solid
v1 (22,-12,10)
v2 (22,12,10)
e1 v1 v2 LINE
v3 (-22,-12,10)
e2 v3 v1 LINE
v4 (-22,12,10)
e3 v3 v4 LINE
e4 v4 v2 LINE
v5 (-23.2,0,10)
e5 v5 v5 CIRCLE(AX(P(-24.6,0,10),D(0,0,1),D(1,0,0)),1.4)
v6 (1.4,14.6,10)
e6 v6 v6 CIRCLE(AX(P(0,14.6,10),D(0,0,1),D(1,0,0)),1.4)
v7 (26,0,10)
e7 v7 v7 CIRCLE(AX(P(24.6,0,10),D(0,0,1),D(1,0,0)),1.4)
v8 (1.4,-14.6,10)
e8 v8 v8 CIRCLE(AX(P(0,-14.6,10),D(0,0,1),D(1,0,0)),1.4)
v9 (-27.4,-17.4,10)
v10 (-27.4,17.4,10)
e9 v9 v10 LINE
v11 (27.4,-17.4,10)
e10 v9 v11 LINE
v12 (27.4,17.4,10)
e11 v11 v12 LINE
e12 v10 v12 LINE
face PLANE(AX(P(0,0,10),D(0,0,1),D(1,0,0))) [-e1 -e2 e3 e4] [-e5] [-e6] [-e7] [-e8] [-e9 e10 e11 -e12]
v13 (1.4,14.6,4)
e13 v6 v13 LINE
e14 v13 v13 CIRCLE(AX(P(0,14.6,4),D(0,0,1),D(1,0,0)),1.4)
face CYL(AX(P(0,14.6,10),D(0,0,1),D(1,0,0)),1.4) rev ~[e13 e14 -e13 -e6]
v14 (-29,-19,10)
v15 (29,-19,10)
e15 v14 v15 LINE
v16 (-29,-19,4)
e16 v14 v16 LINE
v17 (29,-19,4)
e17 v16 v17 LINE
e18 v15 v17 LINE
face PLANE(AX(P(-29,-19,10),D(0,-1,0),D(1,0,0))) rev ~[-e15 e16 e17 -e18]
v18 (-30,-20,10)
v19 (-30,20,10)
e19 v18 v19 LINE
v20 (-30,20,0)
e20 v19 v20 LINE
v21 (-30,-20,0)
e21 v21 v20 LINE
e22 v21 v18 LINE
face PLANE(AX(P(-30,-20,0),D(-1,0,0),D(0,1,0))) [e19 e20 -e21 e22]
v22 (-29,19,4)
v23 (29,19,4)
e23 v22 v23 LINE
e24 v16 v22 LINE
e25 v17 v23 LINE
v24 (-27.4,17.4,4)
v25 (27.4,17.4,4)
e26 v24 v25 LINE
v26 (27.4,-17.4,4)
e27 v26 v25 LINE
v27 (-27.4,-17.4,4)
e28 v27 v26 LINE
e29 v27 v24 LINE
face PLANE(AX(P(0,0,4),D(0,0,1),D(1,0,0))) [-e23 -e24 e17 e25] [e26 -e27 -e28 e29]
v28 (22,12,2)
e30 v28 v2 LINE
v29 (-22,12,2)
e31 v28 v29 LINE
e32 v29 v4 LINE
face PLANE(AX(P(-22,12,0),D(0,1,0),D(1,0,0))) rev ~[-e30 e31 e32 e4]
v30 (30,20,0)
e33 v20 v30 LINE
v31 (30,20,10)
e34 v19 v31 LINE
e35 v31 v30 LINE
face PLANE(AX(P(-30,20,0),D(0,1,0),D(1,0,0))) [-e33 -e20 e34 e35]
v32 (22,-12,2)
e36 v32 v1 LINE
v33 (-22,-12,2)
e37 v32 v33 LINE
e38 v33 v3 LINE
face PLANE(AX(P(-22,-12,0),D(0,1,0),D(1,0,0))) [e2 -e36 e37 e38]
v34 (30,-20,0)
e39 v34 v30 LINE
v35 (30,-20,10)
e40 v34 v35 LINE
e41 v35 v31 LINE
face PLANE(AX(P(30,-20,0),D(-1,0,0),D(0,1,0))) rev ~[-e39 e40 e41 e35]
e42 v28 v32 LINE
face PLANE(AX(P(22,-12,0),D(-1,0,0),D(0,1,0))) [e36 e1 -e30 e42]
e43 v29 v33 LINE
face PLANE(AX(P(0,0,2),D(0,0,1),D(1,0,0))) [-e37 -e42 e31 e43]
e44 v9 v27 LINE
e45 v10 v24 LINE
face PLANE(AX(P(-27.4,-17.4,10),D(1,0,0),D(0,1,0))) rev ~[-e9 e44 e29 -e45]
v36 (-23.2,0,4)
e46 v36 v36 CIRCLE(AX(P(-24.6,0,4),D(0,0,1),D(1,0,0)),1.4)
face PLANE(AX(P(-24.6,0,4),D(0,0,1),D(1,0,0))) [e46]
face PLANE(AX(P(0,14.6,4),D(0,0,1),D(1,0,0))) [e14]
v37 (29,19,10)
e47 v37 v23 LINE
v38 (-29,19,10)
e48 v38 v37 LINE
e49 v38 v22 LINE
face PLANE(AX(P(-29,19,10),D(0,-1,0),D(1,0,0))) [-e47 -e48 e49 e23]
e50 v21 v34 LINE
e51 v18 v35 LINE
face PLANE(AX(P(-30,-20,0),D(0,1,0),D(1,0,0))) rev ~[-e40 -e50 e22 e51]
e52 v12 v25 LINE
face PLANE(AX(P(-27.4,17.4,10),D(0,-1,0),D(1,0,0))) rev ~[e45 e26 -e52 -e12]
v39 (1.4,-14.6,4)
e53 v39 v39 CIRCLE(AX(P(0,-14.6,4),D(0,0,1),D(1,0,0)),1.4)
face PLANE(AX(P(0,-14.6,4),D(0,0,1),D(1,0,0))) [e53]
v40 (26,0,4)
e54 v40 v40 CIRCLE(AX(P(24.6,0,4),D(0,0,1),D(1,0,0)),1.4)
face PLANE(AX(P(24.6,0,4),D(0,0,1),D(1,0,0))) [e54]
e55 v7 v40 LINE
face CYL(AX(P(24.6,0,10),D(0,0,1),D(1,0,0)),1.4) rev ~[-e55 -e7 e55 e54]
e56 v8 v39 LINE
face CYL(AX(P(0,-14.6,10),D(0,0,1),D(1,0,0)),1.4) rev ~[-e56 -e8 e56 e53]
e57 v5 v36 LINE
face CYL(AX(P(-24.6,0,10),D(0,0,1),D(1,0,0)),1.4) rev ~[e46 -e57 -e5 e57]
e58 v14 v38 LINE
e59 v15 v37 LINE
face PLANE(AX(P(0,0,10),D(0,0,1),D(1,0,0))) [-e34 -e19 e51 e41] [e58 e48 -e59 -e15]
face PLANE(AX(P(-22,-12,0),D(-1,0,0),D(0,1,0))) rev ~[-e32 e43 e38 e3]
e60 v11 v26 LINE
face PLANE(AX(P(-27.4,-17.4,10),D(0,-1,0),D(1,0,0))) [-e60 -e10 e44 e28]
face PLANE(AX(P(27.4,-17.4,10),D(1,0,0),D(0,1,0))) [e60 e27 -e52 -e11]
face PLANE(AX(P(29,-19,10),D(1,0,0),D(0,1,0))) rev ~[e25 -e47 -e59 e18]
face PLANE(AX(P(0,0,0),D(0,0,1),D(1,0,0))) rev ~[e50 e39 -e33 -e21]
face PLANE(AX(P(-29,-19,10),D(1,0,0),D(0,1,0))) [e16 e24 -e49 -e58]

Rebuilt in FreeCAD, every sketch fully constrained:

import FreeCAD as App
import Part
import Sketcher
from FreeCAD import Vector
Q = App.Units.Quantity

doc = App.newDocument("Part")
body = doc.addObject("PartDesign::Body", "Body")

sketch1 = body.newObject("Sketcher::SketchObject", "Sketch")
sketch1.AttachmentSupport = (doc.getObject("XY_Plane"), [""])
sketch1.MapMode = "FlatFace"
sketch1.addGeometry(Part.LineSegment(Vector(-30, 20, 0), Vector(-30, -20, 0)), False)
sketch1.addGeometry(Part.LineSegment(Vector(-30, -20, 0), Vector(30, -20, 0)), False)
sketch1.addGeometry(Part.LineSegment(Vector(30, -20, 0), Vector(30, 20, 0)), False)
sketch1.addGeometry(Part.LineSegment(Vector(30, 20, 0), Vector(-30, 20, 0)), False)
sketch1.addConstraint(Sketcher.Constraint("Coincident", 0, 2, 1, 1))
sketch1.addConstraint(Sketcher.Constraint("Coincident", 1, 2, 2, 1))
sketch1.addConstraint(Sketcher.Constraint("Coincident", 2, 2, 3, 1))
sketch1.addConstraint(Sketcher.Constraint("Coincident", 3, 2, 0, 1))
sketch1.addConstraint(Sketcher.Constraint("Vertical", 0))
sketch1.addConstraint(Sketcher.Constraint("Horizontal", 1))
sketch1.addConstraint(Sketcher.Constraint("Vertical", 2))
sketch1.addConstraint(Sketcher.Constraint("Horizontal", 3))
sketch1.addConstraint(Sketcher.Constraint("Symmetric", 0, 2, 2, 2, -1, 1))
sketch1.addConstraint(Sketcher.Constraint("DistanceX", 1, 1, 1, 2, Q("60 mm")))
sketch1.addConstraint(Sketcher.Constraint("DistanceY", 0, 2, 0, 1, Q("40 mm")))
pad1 = body.newObject("PartDesign::Pad", "Pad")
pad1.Profile = sketch1
pad1.Length = 2

sketch2 = body.newObject("Sketcher::SketchObject", "Sketch001")
sketch2.AttachmentSupport = (doc.getObject("XY_Plane"), [""])
sketch2.MapMode = "FlatFace"
sketch2.addGeometry(Part.LineSegment(Vector(-30, 20, 0), Vector(-30, -20, 0)), False)
sketch2.addGeometry(Part.LineSegment(Vector(-30, -20, 0), Vector(30, -20, 0)), False)
sketch2.addGeometry(Part.LineSegment(Vector(30, -20, 0), Vector(30, 20, 0)), False)
sketch2.addGeometry(Part.LineSegment(Vector(30, 20, 0), Vector(-30, 20, 0)), False)
sketch2.addGeometry(Part.LineSegment(Vector(22, -12, 0), Vector(-22, -12, 0)), False)
sketch2.addGeometry(Part.LineSegment(Vector(-22, -12, 0), Vector(-22, 12, 0)), False)
sketch2.addGeometry(Part.LineSegment(Vector(-22, 12, 0), Vector(22, 12, 0)), False)
sketch2.addGeometry(Part.LineSegment(Vector(22, 12, 0), Vector(22, -12, 0)), False)
sketch2.addConstraint(Sketcher.Constraint("Coincident", 0, 2, 1, 1))
sketch2.addConstraint(Sketcher.Constraint("Coincident", 1, 2, 2, 1))
sketch2.addConstraint(Sketcher.Constraint("Coincident", 2, 2, 3, 1))
sketch2.addConstraint(Sketcher.Constraint("Coincident", 3, 2, 0, 1))
sketch2.addConstraint(Sketcher.Constraint("Coincident", 4, 2, 5, 1))
sketch2.addConstraint(Sketcher.Constraint("Coincident", 5, 2, 6, 1))
sketch2.addConstraint(Sketcher.Constraint("Coincident", 6, 2, 7, 1))
sketch2.addConstraint(Sketcher.Constraint("Coincident", 7, 2, 4, 1))
sketch2.addConstraint(Sketcher.Constraint("Vertical", 0))
sketch2.addConstraint(Sketcher.Constraint("Horizontal", 1))
sketch2.addConstraint(Sketcher.Constraint("Vertical", 2))
sketch2.addConstraint(Sketcher.Constraint("Horizontal", 3))
sketch2.addConstraint(Sketcher.Constraint("Horizontal", 4))
sketch2.addConstraint(Sketcher.Constraint("Vertical", 5))
sketch2.addConstraint(Sketcher.Constraint("Horizontal", 6))
sketch2.addConstraint(Sketcher.Constraint("Vertical", 7))
sketch2.addConstraint(Sketcher.Constraint("Symmetric", 0, 2, 2, 2, -1, 1))
sketch2.addConstraint(Sketcher.Constraint("Symmetric", 4, 2, 6, 2, -1, 1))
sketch2.addConstraint(Sketcher.Constraint("DistanceX", 1, 1, 1, 2, Q("60 mm")))
sketch2.addConstraint(Sketcher.Constraint("DistanceX", 4, 2, 4, 1, Q("44 mm")))
sketch2.addConstraint(Sketcher.Constraint("DistanceY", 0, 2, 0, 1, Q("40 mm")))
sketch2.addConstraint(Sketcher.Constraint("DistanceY", 5, 1, 5, 2, Q("24 mm")))
pad2 = body.newObject("PartDesign::Pad", "Pad001")
pad2.Profile = sketch2
pad2.Length = 10

sketch3 = body.newObject("Sketcher::SketchObject", "Sketch002")
sketch3.AttachmentSupport = (doc.getObject("XY_Plane"), [""])
sketch3.MapMode = "FlatFace"
sketch3.AttachmentOffset = App.Placement(Vector(0, 0, 10), App.Rotation())
sketch3.addGeometry(Part.LineSegment(Vector(-29, 19, 0), Vector(-29, -19, 0)), False)
sketch3.addGeometry(Part.LineSegment(Vector(-29, -19, 0), Vector(29, -19, 0)), False)
sketch3.addGeometry(Part.LineSegment(Vector(29, -19, 0), Vector(29, 19, 0)), False)
sketch3.addGeometry(Part.LineSegment(Vector(29, 19, 0), Vector(-29, 19, 0)), False)
sketch3.addGeometry(Part.LineSegment(Vector(27.4, -17.4, 0), Vector(-27.4, -17.4, 0)), False)
sketch3.addGeometry(Part.LineSegment(Vector(-27.4, -17.4, 0), Vector(-27.4, 17.4, 0)), False)
sketch3.addGeometry(Part.LineSegment(Vector(-27.4, 17.4, 0), Vector(27.4, 17.4, 0)), False)
sketch3.addGeometry(Part.LineSegment(Vector(27.4, 17.4, 0), Vector(27.4, -17.4, 0)), False)
sketch3.addGeometry(Part.Circle(Vector(0, 14.6, 0), Vector(0, 0, 1), 1.4), False)
sketch3.addGeometry(Part.Circle(Vector(24.6, 0, 0), Vector(0, 0, 1), 1.4), False)
sketch3.addGeometry(Part.Circle(Vector(0, -14.6, 0), Vector(0, 0, 1), 1.4), False)
sketch3.addGeometry(Part.Circle(Vector(-24.6, 0, 0), Vector(0, 0, 1), 1.4), False)
sketch3.addConstraint(Sketcher.Constraint("Coincident", 0, 2, 1, 1))
sketch3.addConstraint(Sketcher.Constraint("Coincident", 1, 2, 2, 1))
sketch3.addConstraint(Sketcher.Constraint("Coincident", 2, 2, 3, 1))
sketch3.addConstraint(Sketcher.Constraint("Coincident", 3, 2, 0, 1))
sketch3.addConstraint(Sketcher.Constraint("Coincident", 4, 2, 5, 1))
sketch3.addConstraint(Sketcher.Constraint("Coincident", 5, 2, 6, 1))
sketch3.addConstraint(Sketcher.Constraint("Coincident", 6, 2, 7, 1))
sketch3.addConstraint(Sketcher.Constraint("Coincident", 7, 2, 4, 1))
sketch3.addConstraint(Sketcher.Constraint("Vertical", 0))
sketch3.addConstraint(Sketcher.Constraint("Horizontal", 1))
sketch3.addConstraint(Sketcher.Constraint("Vertical", 2))
sketch3.addConstraint(Sketcher.Constraint("Horizontal", 3))
sketch3.addConstraint(Sketcher.Constraint("Horizontal", 4))
sketch3.addConstraint(Sketcher.Constraint("Vertical", 5))
sketch3.addConstraint(Sketcher.Constraint("Horizontal", 6))
sketch3.addConstraint(Sketcher.Constraint("Vertical", 7))
sketch3.addConstraint(Sketcher.Constraint("Equal", 8, 9))
sketch3.addConstraint(Sketcher.Constraint("Equal", 9, 10))
sketch3.addConstraint(Sketcher.Constraint("Equal", 10, 11))
sketch3.addConstraint(Sketcher.Constraint("Symmetric", 8, 3, 10, 3, -1, 1))
sketch3.addConstraint(Sketcher.Constraint("Symmetric", 9, 3, 11, 3, -1, 1))
sketch3.addConstraint(Sketcher.Constraint("Symmetric", 0, 2, 2, 2, -1, 1))
sketch3.addConstraint(Sketcher.Constraint("Symmetric", 4, 2, 6, 2, -1, 1))
sketch3.addConstraint(Sketcher.Constraint("PointOnObject", 8, 3, -2))
sketch3.addConstraint(Sketcher.Constraint("PointOnObject", 9, 3, -1))
sketch3.addConstraint(Sketcher.Constraint("Diameter", 8, Q("2.8 mm")))
sketch3.addConstraint(Sketcher.Constraint("DistanceX", 1, 1, 1, 2, Q("58 mm")))
sketch3.addConstraint(Sketcher.Constraint("DistanceY", 0, 2, 0, 1, Q("38 mm")))
sketch3.addConstraint(Sketcher.Constraint("DistanceX", 4, 2, 4, 1, Q("54.8 mm")))
sketch3.addConstraint(Sketcher.Constraint("DistanceY", 5, 1, 5, 2, Q("34.8 mm")))
sketch3.addConstraint(Sketcher.Constraint("DistanceY", 4, 2, 8, 3, Q("32 mm")))
sketch3.addConstraint(Sketcher.Constraint("DistanceX", -1, 1, 9, 3, Q("24.6 mm")))
pocket1 = body.newObject("PartDesign::Pocket", "Pocket")
pocket1.Profile = sketch3
pocket1.Length = 6

doc.recompute()
